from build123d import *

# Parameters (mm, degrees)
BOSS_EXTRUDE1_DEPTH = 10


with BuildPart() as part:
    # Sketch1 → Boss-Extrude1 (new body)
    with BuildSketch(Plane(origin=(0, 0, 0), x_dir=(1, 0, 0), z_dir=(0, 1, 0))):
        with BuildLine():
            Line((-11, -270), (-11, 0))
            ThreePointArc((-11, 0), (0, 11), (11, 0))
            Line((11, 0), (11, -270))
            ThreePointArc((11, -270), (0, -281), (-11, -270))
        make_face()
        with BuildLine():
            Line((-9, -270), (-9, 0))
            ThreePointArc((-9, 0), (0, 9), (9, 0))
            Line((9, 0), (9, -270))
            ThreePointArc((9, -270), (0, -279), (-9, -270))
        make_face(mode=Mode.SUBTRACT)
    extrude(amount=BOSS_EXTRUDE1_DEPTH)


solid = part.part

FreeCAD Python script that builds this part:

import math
import FreeCAD as App
import Part
import Sketcher

V = App.Vector
Q = App.Units.Quantity

doc = App.newDocument("Part")
params = doc.addObject("Spreadsheet::Sheet", "Params")
for row, (alias, value) in enumerate([
    ("sketch1_radius", "11 mm"),
    ("sketch1_radius2", "9 mm"),
    ("sketch1_height", "270 mm"),
    ("pad1_length", "10 mm"),
], start=1):
    params.set(f"A{row}", alias)
    params.set(f"B{row}", "=" + value)
    params.setAlias(f"B{row}", alias)

body = doc.addObject("PartDesign::Body", "Body")

sketch1 = body.newObject("Sketcher::SketchObject", "Sketch")
sketch1.AttachmentSupport = (doc.getObject("XZ_Plane"), [""])
sketch1.MapMode = "FlatFace"
sketch1.addGeometry([
    Part.LineSegment(V(-11, 0, 0), V(-11, 270, 0)),
    Part.ArcOfCircle(Part.Circle(V(0, 270, 0), V(0, 0, 1), 11), math.radians(0), math.radians(180)),
    Part.LineSegment(V(11, 270, 0), V(11, 0, 0)),
    Part.ArcOfCircle(Part.Circle(V(0, 0, 0), V(0, 0, 1), 11), math.radians(180), math.radians(360)),
    Part.LineSegment(V(-9, 270, 0), V(-9, 0, 0)),
    Part.ArcOfCircle(Part.Circle(V(0, 0, 0), V(0, 0, 1), 9), math.radians(180), math.radians(360)),
    Part.LineSegment(V(9, 0, 0), V(9, 270, 0)),
    Part.ArcOfCircle(Part.Circle(V(0, 270, 0), V(0, 0, 1), 9), math.radians(0), math.radians(180)),
], False)
sketch1.addConstraint([
    Sketcher.Constraint("Tangent", 0, 2, 1, 2),
    Sketcher.Constraint("Tangent", 1, 1, 2, 1),
    Sketcher.Constraint("Tangent", 2, 2, 3, 2),
    Sketcher.Constraint("Tangent", 3, 1, 0, 1),
    Sketcher.Constraint("Tangent", 4, 2, 5, 1),
    Sketcher.Constraint("Tangent", 5, 2, 6, 1),
    Sketcher.Constraint("Tangent", 6, 2, 7, 1),
    Sketcher.Constraint("Tangent", 7, 2, 4, 1),
    Sketcher.Constraint("Vertical", 0),
    Sketcher.Constraint("Vertical", 2),
    Sketcher.Constraint("Vertical", 4),
    Sketcher.Constraint("Vertical", 6),
    Sketcher.Constraint("Coincident", 3, 3, -1, 1),
    Sketcher.Constraint("Coincident", 5, 3, -1, 1),
    Sketcher.Constraint("Horizontal", 7, 3, 0, 2),
    Sketcher.Constraint("Radius", 1, Q("11 mm")),
    Sketcher.Constraint("Radius", 5, Q("9 mm")),
    Sketcher.Constraint("DistanceY", 0, 1, 0, 2, Q("270 mm")),
])
sketch1.setExpression("Constraints[15]", "Params.sketch1_radius")
sketch1.setExpression("Constraints[16]", "Params.sketch1_radius2")
sketch1.setExpression("Constraints[17]", "Params.sketch1_height")
pad1 = body.newObject("PartDesign::Pad", "Pad")
pad1.Profile = sketch1
pad1.setExpression("Length", "Params.pad1_length")
pad1.Reversed = True

doc.recompute()
